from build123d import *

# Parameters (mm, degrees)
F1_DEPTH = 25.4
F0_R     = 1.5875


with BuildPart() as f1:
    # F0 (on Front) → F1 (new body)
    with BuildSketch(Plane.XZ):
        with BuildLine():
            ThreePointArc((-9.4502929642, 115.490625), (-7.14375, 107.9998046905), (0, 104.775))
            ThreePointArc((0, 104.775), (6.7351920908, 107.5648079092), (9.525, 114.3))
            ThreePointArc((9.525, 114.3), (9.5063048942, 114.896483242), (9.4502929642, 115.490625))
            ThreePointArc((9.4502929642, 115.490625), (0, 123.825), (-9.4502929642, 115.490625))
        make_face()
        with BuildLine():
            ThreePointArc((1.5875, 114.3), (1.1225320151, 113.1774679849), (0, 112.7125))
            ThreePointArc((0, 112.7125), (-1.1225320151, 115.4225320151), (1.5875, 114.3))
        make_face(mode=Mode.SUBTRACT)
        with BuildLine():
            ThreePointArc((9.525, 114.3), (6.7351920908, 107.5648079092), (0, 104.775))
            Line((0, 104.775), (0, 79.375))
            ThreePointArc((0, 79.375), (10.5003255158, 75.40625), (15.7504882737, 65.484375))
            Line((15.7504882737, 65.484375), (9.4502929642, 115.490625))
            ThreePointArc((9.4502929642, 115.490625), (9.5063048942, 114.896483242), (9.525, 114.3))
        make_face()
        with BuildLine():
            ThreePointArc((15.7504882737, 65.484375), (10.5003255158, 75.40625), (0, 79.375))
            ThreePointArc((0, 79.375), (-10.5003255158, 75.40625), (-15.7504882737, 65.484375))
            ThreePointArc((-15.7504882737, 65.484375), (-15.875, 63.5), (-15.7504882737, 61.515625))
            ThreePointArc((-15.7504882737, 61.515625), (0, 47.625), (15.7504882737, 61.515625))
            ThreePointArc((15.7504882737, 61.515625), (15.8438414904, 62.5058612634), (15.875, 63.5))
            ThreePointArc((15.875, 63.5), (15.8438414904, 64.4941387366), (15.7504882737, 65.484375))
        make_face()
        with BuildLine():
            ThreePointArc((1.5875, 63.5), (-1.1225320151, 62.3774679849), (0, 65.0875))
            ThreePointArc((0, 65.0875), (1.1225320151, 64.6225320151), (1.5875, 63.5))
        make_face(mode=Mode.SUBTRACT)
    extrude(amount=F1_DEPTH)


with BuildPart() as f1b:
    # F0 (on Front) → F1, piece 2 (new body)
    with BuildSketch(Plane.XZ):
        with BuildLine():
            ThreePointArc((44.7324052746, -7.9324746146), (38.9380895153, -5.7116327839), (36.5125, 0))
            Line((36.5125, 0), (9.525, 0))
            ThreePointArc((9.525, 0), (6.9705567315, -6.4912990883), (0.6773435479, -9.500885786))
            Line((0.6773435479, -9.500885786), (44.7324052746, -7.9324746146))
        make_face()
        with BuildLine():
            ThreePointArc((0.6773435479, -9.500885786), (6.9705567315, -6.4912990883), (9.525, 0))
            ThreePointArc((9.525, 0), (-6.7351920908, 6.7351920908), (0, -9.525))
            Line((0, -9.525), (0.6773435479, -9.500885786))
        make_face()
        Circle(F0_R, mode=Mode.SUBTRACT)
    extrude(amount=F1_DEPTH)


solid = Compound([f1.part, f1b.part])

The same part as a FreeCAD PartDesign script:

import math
import FreeCAD as App
import Part
import Sketcher
from FreeCAD import Vector
Q = App.Units.Quantity

doc = App.newDocument("Part")
body = doc.addObject("PartDesign::Body", "Body")

sketch1 = body.newObject("Sketcher::SketchObject", "Sketch")
sketch1.AttachmentSupport = (doc.getObject("XZ_Plane"), [""])
sketch1.MapMode = "FlatFace"
sketch1.addGeometry([
    Part.ArcOfCircle(Part.Circle(Vector(0, 114.3, 0), Vector(0, 0, 1), 9.5), math.radians(173), math.radians(270)),
    Part.LineSegment(Vector(0, 104.8, 0), Vector(0, 79.4, 0)),
    Part.ArcOfCircle(Part.Circle(Vector(0, 63.5, 0), Vector(0, 0, 1), 15.9), math.radians(90), math.radians(173)),
    Part.ArcOfCircle(Part.Circle(Vector(0, 63.5, 0), Vector(0, 0, 1), 15.9), math.radians(172.82), math.radians(187.18)),
    Part.ArcOfCircle(Part.Circle(Vector(0, 63.5, 0), Vector(0, 0, 1), 15.9), math.radians(-173), math.radians(-7)),
    Part.ArcOfCircle(Part.Circle(Vector(0, 63.5, 0), Vector(0, 0, 1), 15.9), math.radians(-7.18), math.radians(0)),
    Part.ArcOfCircle(Part.Circle(Vector(0, 63.5, 0), Vector(0, 0, 1), 15.9), math.radians(0), math.radians(7.18)),
    Part.LineSegment(Vector(15.8, 65.5, 0), Vector(9.5, 115.5, 0)),
    Part.ArcOfCircle(Part.Circle(Vector(0, 114.3, 0), Vector(0, 0, 1), 9.5), math.radians(7), math.radians(173)),
    Part.ArcOfCircle(Part.Circle(Vector(0, 63.5, 0), Vector(0, 0, 1), 1.6), math.radians(0), math.radians(90)),
    Part.ArcOfCircle(Part.Circle(Vector(0, 63.5, 0), Vector(0, 0, 1), 1.6), math.radians(90), math.radians(360)),
    Part.ArcOfCircle(Part.Circle(Vector(0, 114.3, 0), Vector(0, 0, 1), 1.6), math.radians(0), math.radians(270)),
    Part.ArcOfCircle(Part.Circle(Vector(0, 114.3, 0), Vector(0, 0, 1), 1.6), math.radians(-90), math.radians(0)),
], False)
sketch1.addConstraint([
    Sketcher.Constraint("Coincident", 0, 2, 1, 1),
    Sketcher.Constraint("Coincident", 1, 2, 2, 1),
    Sketcher.Constraint("Tangent", 2, 2, 3, 1),
    Sketcher.Constraint("Tangent", 3, 2, 4, 1),
    Sketcher.Constraint("Tangent", 4, 2, 5, 1),
    Sketcher.Constraint("Tangent", 5, 2, 6, 1),
    Sketcher.Constraint("Tangent", 6, 2, 7, 1),
    Sketcher.Constraint("Tangent", 7, 2, 8, 1),
    Sketcher.Constraint("Tangent", 8, 2, 0, 1),
    Sketcher.Constraint("Tangent", 9, 1, 10, 2),
    Sketcher.Constraint("Coincident", 10, 1, 9, 2),
    Sketcher.Constraint("Tangent", 11, 1, 12, 2),
    Sketcher.Constraint("Coincident", 12, 1, 11, 2),
    Sketcher.Constraint("Vertical", 1),
    Sketcher.Constraint("Coincident", 4, 3, 2, 3),
    Sketcher.Constraint("Coincident", 6, 3, 2, 3),
    Sketcher.Constraint("Coincident", 9, 3, 2, 3),
    Sketcher.Constraint("Coincident", 11, 3, 0, 3),
    Sketcher.Constraint("Equal", 0, 8),
    Sketcher.Constraint("Equal", 10, 11),
    Sketcher.Constraint("Symmetric", 3, 2, 4, 2, -2),
    Sketcher.Constraint("Symmetric", 7, 2, 8, 2, -2),
    Sketcher.Constraint("PointOnObject", 0, 2, -2),
    Sketcher.Constraint("PointOnObject", 10, 1, -2),
    Sketcher.Constraint("PointOnObject", 12, 1, -2),
    Sketcher.Constraint("Horizontal", 10, 3, 5, 2),
    Sketcher.Constraint("Horizontal", 2, 2, 6, 2),
    Sketcher.Constraint("Horizontal", 5, 2, 9, 1),
    Sketcher.Constraint("Horizontal", 12, 3, 11, 1),
    Sketcher.Constraint("Vertical", 2, 2, 3, 2),
    Sketcher.Constraint("DistanceY", 1, 2, 1, 1, Q("1 in")),
    Sketcher.Constraint("Radius", 0, Q("0.375 in")),
    Sketcher.Constraint("Radius", 2, Q("0.625 in")),
    Sketcher.Constraint("Radius", 9, Q("0.0625 in")),
    Sketcher.Constraint("DistanceY", -1, 1, 0, 3, Q("4.5 in")),
])
pad1 = body.newObject("PartDesign::Pad", "Pad")
pad1.Profile = sketch1
pad1.Length = Q("1 in")
body2 = doc.addObject("PartDesign::Body", "Body001")

sketch2 = body2.newObject("Sketcher::SketchObject", "Sketch001")
sketch2.AttachmentSupport = (doc.getObject("XZ_Plane001"), [""])
sketch2.MapMode = "FlatFace"
sketch2.addGeometry([
    Part.ArcOfCircle(Part.Circle(Vector(44.5, 0, 0), Vector(0, 0, 1), 7.9), math.radians(180), math.radians(272)),
    Part.LineSegment(Vector(36.5, 0, 0), Vector(9.5, 0, 0)),
    Part.ArcOfCircle(Part.Circle(Vector(0, 0, 0), Vector(0, 0, 1), 9.5), math.radians(0), math.radians(270)),
    Part.LineSegment(Vector(0, -9.5, 0), Vector(0.7, -9.5, 0)),
    Part.LineSegment(Vector(0.7, -9.5, 0), Vector(44.7, -7.9, 0)),
    Part.Circle(Vector(0, 0, 0), Vector(0, 0, 1), 1.6),
], False)
sketch2.addConstraint([
    Sketcher.Constraint("Coincident", 0, 1, 1, 1),
    Sketcher.Constraint("Coincident", 1, 2, 2, 1),
    Sketcher.Constraint("Coincident", 2, 2, 3, 1),
    Sketcher.Constraint("Coincident", 3, 2, 4, 1),
    Sketcher.Constraint("Tangent", 4, 2, 0, 2),
    Sketcher.Constraint("Horizontal", 1),
    Sketcher.Constraint("Coincident", 2, 3, -1, 1),
    Sketcher.Constraint("Coincident", 5, 3, -1, 1),
    Sketcher.Constraint("PointOnObject", 0, 3, -1),
    Sketcher.Constraint("PointOnObject", 0, 1, -1),
    Sketcher.Constraint("PointOnObject", 2, 2, -2),
    Sketcher.Constraint("Parallel", 3, 4),
    Sketcher.Constraint("Diameter", 5, Q("0.125 in")),
    Sketcher.Constraint("Radius", 0, Q("0.3125 in")),
    Sketcher.Constraint("Radius", 2, Q("0.375 in")),
    Sketcher.Constraint("DistanceX", 1, 2, 1, 1, Q("1.0625 in")),
    Sketcher.Constraint("Distance", 4, Q("44.082972 mm")),
])
pad2 = body2.newObject("PartDesign::Pad", "Pad001")
pad2.Profile = sketch2
pad2.Length = Q("1 in")

doc.recompute()
